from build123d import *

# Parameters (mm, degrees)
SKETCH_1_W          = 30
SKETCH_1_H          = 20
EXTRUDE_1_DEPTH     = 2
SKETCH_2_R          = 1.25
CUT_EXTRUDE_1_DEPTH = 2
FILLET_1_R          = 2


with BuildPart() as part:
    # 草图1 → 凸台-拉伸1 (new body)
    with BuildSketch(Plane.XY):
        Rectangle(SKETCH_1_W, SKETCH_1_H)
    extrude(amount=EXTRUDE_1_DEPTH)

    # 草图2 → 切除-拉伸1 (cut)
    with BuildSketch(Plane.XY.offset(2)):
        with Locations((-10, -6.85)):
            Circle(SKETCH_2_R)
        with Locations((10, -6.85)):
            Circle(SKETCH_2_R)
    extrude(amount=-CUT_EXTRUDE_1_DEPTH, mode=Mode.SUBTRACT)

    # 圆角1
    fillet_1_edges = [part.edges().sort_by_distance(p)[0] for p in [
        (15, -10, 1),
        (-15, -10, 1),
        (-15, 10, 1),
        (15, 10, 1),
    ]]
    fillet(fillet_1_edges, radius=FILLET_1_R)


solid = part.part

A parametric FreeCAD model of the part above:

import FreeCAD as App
import Part
import Sketcher

V = App.Vector


def edges_at(feature, points):
    """Names of the edges that pass closest to the given points."""
    edges = feature.Shape.Edges
    near = lambda p: min(range(len(edges)), key=lambda i: edges[i].distToShape(Part.Vertex(*p))[0])
    return sorted({f"Edge{near(p) + 1}" for p in points})


def add_polygon(sketch, points):
    """Adds a closed chain of lines whose ends are joined by coincident constraints."""
    first, n = sketch.GeometryCount, len(points)
    for a, b in zip(points, points[1:] + points[:1]):
        sketch.addGeometry(Part.LineSegment(App.Vector(*a, 0), App.Vector(*b, 0)), False)
    for i in range(n):
        sketch.addConstraint(Sketcher.Constraint("Coincident", first + i, 2, first + (i + 1) % n, 1))

doc = App.newDocument("Part")
body = doc.addObject("PartDesign::Body", "Body")

sketch1 = body.newObject("Sketcher::SketchObject", "Sketch")
sketch1.AttachmentSupport = (doc.getObject("XY_Plane"), [""])
sketch1.MapMode = "FlatFace"
add_polygon(sketch1, [(-15, 10), (-15, -10), (15, -10), (15, 10)])
sketch1.addConstraint(Sketcher.Constraint("Vertical", 0))
sketch1.addConstraint(Sketcher.Constraint("Horizontal", 1))
sketch1.addConstraint(Sketcher.Constraint("Vertical", 2))
sketch1.addConstraint(Sketcher.Constraint("Horizontal", 3))
sketch1.addConstraint(Sketcher.Constraint("Symmetric", 0, 2, 2, 2, -1, 1))
sketch1.addConstraint(Sketcher.Constraint("DistanceX", 1, 1, 1, 2, 30.0))
sketch1.addConstraint(Sketcher.Constraint("DistanceY", 0, 2, 0, 1, 20.0))
pad1 = body.newObject("PartDesign::Pad", "Pad")
pad1.Profile = sketch1
pad1.Length = 2

sketch2 = body.newObject("Sketcher::SketchObject", "Sketch001")
sketch2.AttachmentSupport = (doc.getObject("XY_Plane"), [""])
sketch2.MapMode = "FlatFace"
sketch2.AttachmentOffset = App.Placement(V(0, 0, 2), App.Rotation())
sketch2.addGeometry(Part.Circle(V(-10, -6.85, 0), V(0, 0, 1), 1.25), False)
sketch2.addGeometry(Part.Circle(V(10, -6.85, 0), V(0, 0, 1), 1.25), False)
sketch2.addConstraint(Sketcher.Constraint("Equal", 0, 1))
sketch2.addConstraint(Sketcher.Constraint("Symmetric", 0, 3, 1, 3, -2))
sketch2.addConstraint(Sketcher.Constraint("Diameter", 0, 2.5))
sketch2.addConstraint(Sketcher.Constraint("DistanceX", 0, 3, -1, 1, 10.0))
sketch2.addConstraint(Sketcher.Constraint("DistanceY", 0, 3, -1, 1, 6.85))
pocket1 = body.newObject("PartDesign::Pocket", "Pocket")
pocket1.Profile = sketch2
pocket1.Length = 2
doc.recompute()

fillet = body.newObject("PartDesign::Fillet", "Fillet")
fillet.Base = (pocket1, edges_at(pocket1, [
    (15, -10, 1),
    (-15, -10, 1),
    (-15, 10, 1),
    (15, 10, 1),
]))
fillet.Radius = 2

doc.recompute()
